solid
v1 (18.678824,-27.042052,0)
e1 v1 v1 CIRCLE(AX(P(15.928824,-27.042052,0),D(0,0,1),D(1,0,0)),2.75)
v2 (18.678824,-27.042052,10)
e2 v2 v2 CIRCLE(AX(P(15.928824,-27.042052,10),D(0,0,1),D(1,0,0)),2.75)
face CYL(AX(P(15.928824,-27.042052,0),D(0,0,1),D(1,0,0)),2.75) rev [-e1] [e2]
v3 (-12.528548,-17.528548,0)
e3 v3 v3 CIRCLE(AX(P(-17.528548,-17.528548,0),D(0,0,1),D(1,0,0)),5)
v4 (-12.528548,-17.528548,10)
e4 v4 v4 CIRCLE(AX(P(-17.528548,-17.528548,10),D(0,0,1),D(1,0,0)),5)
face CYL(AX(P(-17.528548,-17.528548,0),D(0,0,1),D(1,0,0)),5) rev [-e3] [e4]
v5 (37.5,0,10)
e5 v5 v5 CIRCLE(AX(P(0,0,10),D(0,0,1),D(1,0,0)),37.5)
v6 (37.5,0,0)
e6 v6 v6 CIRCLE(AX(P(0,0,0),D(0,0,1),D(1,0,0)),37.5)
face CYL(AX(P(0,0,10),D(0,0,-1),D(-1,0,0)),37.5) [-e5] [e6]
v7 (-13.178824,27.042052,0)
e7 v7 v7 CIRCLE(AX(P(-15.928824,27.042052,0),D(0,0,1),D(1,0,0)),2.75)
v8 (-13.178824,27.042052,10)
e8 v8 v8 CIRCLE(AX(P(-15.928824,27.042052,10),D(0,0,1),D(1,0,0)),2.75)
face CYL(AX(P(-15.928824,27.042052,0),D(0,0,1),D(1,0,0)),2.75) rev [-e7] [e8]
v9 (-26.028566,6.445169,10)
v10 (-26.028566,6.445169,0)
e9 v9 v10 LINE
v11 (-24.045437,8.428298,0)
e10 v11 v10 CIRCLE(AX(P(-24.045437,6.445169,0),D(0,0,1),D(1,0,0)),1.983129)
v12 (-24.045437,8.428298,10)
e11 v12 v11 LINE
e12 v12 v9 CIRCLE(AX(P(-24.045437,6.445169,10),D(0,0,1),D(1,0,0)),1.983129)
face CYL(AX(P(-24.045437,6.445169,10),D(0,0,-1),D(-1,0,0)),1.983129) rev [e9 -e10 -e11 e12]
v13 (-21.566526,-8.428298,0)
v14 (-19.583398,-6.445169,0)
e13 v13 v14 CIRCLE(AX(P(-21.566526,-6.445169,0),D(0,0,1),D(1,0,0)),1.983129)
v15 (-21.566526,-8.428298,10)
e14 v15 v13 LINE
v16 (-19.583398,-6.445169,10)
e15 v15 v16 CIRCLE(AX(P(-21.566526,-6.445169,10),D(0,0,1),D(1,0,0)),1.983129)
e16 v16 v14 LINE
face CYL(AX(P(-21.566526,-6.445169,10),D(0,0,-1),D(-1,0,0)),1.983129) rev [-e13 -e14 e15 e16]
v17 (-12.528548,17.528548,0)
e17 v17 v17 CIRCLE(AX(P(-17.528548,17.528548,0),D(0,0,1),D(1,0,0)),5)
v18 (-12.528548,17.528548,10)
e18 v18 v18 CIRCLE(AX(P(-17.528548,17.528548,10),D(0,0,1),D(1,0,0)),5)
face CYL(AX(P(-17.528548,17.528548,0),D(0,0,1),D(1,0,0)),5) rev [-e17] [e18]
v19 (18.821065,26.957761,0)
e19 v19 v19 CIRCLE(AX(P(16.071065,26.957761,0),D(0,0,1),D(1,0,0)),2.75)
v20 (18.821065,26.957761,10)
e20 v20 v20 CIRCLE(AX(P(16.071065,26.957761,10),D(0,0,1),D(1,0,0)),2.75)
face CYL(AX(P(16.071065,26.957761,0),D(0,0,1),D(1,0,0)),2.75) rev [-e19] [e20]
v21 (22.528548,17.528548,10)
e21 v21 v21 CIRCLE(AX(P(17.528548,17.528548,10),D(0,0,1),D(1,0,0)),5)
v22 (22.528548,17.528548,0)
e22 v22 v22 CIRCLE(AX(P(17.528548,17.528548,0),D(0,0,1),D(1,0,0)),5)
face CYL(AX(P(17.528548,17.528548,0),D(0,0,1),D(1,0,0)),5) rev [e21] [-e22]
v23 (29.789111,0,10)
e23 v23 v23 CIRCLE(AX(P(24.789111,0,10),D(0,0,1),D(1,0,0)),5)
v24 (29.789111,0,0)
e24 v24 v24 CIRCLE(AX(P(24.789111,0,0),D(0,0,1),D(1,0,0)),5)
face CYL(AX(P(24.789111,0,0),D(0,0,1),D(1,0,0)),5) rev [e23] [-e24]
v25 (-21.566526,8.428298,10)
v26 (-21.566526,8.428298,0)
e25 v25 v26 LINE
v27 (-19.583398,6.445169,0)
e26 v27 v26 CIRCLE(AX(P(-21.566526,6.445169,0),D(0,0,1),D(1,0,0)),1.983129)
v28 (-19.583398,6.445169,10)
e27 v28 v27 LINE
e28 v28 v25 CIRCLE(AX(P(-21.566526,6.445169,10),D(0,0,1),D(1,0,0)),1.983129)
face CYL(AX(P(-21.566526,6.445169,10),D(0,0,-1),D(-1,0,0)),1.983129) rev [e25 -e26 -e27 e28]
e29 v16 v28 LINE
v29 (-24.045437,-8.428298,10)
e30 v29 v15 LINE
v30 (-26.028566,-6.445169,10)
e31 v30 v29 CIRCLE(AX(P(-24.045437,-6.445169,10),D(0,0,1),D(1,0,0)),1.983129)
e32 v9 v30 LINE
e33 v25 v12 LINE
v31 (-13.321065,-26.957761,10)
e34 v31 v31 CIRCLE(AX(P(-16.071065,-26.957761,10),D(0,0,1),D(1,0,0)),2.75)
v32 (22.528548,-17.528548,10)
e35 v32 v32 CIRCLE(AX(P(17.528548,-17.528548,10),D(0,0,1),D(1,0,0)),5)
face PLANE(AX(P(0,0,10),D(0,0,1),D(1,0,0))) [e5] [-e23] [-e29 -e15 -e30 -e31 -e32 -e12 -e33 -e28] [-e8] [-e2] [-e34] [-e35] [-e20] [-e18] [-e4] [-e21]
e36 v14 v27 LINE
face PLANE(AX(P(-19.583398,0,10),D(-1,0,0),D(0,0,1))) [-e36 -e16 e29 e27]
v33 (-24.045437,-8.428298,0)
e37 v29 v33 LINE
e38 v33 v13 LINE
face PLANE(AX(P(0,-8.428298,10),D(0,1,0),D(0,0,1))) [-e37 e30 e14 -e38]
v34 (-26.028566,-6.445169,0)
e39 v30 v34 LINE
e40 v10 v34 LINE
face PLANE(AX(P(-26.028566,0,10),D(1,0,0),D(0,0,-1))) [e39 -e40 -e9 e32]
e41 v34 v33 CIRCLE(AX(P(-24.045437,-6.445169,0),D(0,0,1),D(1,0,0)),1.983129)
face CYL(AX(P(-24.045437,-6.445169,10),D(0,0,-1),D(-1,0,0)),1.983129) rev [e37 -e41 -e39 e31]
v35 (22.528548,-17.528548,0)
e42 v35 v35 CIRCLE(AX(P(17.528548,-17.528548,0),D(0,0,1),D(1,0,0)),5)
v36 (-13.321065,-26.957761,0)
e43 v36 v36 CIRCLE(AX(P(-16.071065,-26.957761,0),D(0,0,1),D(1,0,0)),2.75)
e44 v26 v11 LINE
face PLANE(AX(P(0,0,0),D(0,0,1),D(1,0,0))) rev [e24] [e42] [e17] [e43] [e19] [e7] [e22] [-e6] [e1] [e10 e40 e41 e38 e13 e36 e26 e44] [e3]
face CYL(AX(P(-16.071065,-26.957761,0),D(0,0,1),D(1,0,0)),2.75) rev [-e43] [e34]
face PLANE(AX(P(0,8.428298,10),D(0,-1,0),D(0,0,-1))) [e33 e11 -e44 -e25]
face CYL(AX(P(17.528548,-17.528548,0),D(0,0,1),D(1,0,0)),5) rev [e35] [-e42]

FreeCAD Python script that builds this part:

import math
import FreeCAD as App
import Part
import Sketcher
from FreeCAD import Vector
Q = App.Units.Quantity

doc = App.newDocument("Part")
body = doc.addObject("PartDesign::Body", "Body")

# Sketch on XY plane
sketch1 = doc.addObject("Sketcher::SketchObject", "Sketch")
body.addObject(sketch1)
sketch1.AttachmentSupport = (doc.XY_Plane, [""])
sketch1.MapMode = "FlatFace"
sketch1.addGeometry(Part.Circle(Vector(0, 0, 0), Vector(0, 0, 1), 37.5), False)
sketch1.addGeometry(Part.Circle(Vector(-17.5, -17.5, 0), Vector(0, 0, 1), 3.2), False)
sketch1.addGeometry(Part.ArcOfCircle(Part.Circle(Vector(-24, 6.4, 0), Vector(0, 0, 1), 2), math.radians(90), math.radians(180)), False)
sketch1.addGeometry(Part.LineSegment(Vector(-24, 8.4, 0), Vector(-21.6, 8.4, 0)), False)
sketch1.addGeometry(Part.ArcOfCircle(Part.Circle(Vector(-21.6, 6.4, 0), Vector(0, 0, 1), 2), math.radians(37), math.radians(90)), False)
sketch1.addGeometry(Part.ArcOfCircle(Part.Circle(Vector(-21.6, 6.4, 0), Vector(0, 0, 1), 2), math.radians(0), math.radians(37)), False)
sketch1.addGeometry(Part.LineSegment(Vector(-19.6, 6.4, 0), Vector(-19.6, -6.4, 0)), False)
sketch1.addGeometry(Part.ArcOfCircle(Part.Circle(Vector(-21.6, -6.4, 0), Vector(0, 0, 1), 2), math.radians(-90), math.radians(0)), False)
sketch1.addGeometry(Part.LineSegment(Vector(-21.6, -8.4, 0), Vector(-24, -8.4, 0)), False)
sketch1.addGeometry(Part.ArcOfCircle(Part.Circle(Vector(-24, -6.4, 0), Vector(0, 0, 1), 2), math.radians(180), math.radians(270)), False)
sketch1.addGeometry(Part.LineSegment(Vector(-26, -6.4, 0), Vector(-26, 6.4, 0)), False)
sketch1.addGeometry(Part.Circle(Vector(17.5, -17.5, 0), Vector(0, 0, 1), 3.2), False)
sketch1.addGeometry(Part.Circle(Vector(-17.5, 17.5, 0), Vector(0, 0, 1), 3.2), False)
sketch1.addGeometry(Part.ArcOfCircle(Part.Circle(Vector(24.8, 0, 0), Vector(0, 0, 1), 3), math.radians(180), math.radians(360)), False)
sketch1.addGeometry(Part.ArcOfCircle(Part.Circle(Vector(24.8, 0, 0), Vector(0, 0, 1), 3), math.radians(0), math.radians(180)), False)
sketch1.addGeometry(Part.Circle(Vector(17.5, 17.5, 0), Vector(0, 0, 1), 3.2), False)
sketch1.addConstraint(Sketcher.Constraint("Tangent", 2, 1, 3, 1))
sketch1.addConstraint(Sketcher.Constraint("Tangent", 3, 2, 4, 2))
sketch1.addConstraint(Sketcher.Constraint("Tangent", 4, 1, 5, 2))
sketch1.addConstraint(Sketcher.Constraint("Tangent", 5, 1, 6, 1))
sketch1.addConstraint(Sketcher.Constraint("Tangent", 6, 2, 7, 2))
sketch1.addConstraint(Sketcher.Constraint("Tangent", 7, 1, 8, 1))
sketch1.addConstraint(Sketcher.Constraint("Tangent", 8, 2, 9, 2))
sketch1.addConstraint(Sketcher.Constraint("Tangent", 9, 1, 10, 1))
sketch1.addConstraint(Sketcher.Constraint("Tangent", 10, 2, 2, 2))
sketch1.addConstraint(Sketcher.Constraint("Tangent", 13, 1, 14, 2))
sketch1.addConstraint(Sketcher.Constraint("Coincident", 14, 1, 13, 2))
sketch1.addConstraint(Sketcher.Constraint("Horizontal", 3))
sketch1.addConstraint(Sketcher.Constraint("Vertical", 6))
sketch1.addConstraint(Sketcher.Constraint("Horizontal", 8))
sketch1.addConstraint(Sketcher.Constraint("Vertical", 10))
sketch1.addConstraint(Sketcher.Constraint("Coincident", 0, 3, -1, 1))
sketch1.addConstraint(Sketcher.Constraint("Equal", 2, 4))
sketch1.addConstraint(Sketcher.Constraint("Equal", 4, 5))
sketch1.addConstraint(Sketcher.Constraint("Equal", 5, 7))
sketch1.addConstraint(Sketcher.Constraint("Equal", 7, 9))
sketch1.addConstraint(Sketcher.Constraint("Equal", 1, 11))
sketch1.addConstraint(Sketcher.Constraint("Equal", 11, 12))
sketch1.addConstraint(Sketcher.Constraint("Equal", 12, 15))
sketch1.addConstraint(Sketcher.Constraint("Symmetric", 11, 3, 12, 3, -1, 1))
sketch1.addConstraint(Sketcher.Constraint("Symmetric", 1, 3, 15, 3, -1, 1))
sketch1.addConstraint(Sketcher.Constraint("Symmetric", 1, 3, 11, 3, -2))
sketch1.addConstraint(Sketcher.Constraint("PointOnObject", 13, 3, -1))
sketch1.addConstraint(Sketcher.Constraint("PointOnObject", 13, 1, -1))
sketch1.addConstraint(Sketcher.Constraint("PointOnObject", 14, 1, -1))
sketch1.addConstraint(Sketcher.Constraint("Diameter", 0, Q("75 mm")))
sketch1.addConstraint(Sketcher.Constraint("Diameter", 1, Q("6.445169 mm")))
sketch1.addConstraint(Sketcher.Constraint("Radius", 2, Q("1.983129 mm")))
sketch1.addConstraint(Sketcher.Constraint("Radius", 13, Q("2.974693 mm")))
sketch1.addConstraint(Sketcher.Constraint("DistanceX", 3, 1, 3, 2, Q("2.478911 mm")))
sketch1.addConstraint(Sketcher.Constraint("DistanceY", 6, 2, 6, 1, Q("12.890338 mm")))
sketch1.addConstraint(Sketcher.Constraint("DistanceX", 1, 3, -1, 1, Q("17.528548 mm")))
sketch1.addConstraint(Sketcher.Constraint("DistanceY", 1, 3, -1, 1, Q("17.528548 mm")))
sketch1.addConstraint(Sketcher.Constraint("DistanceY", -1, 1, 2, 3, Q("6.445169 mm")))
sketch1.addConstraint(Sketcher.Constraint("DistanceX", -1, 1, 13, 3, Q("24.789111 mm")))
sketch1.addConstraint(Sketcher.Constraint("DistanceY", -1, 1, 4, 1, Q("7.642159 mm")))
sketch1.addConstraint(Sketcher.Constraint("DistanceX", 2, 3, 1, 3, Q("6.516889 mm")))
pad1 = doc.addObject("PartDesign::Pad", "Pad")
body.addObject(pad1)
pad1.Profile = sketch1
pad1.Length = 10

# Sketch on XY plane
sketch2 = doc.addObject("Sketcher::SketchObject", "Sketch001")
body.addObject(sketch2)
sketch2.AttachmentSupport = (doc.XY_Plane, [""])
sketch2.MapMode = "FlatFace"
sketch2.AttachmentOffset = App.Placement(Vector(0, 0, 10), App.Rotation())
sketch2.addGeometry(Part.Circle(Vector(-17.5, 17.5, 0), Vector(0, 0, 1), 5), False)
sketch2.addGeometry(Part.Circle(Vector(-17.5, 17.5, 0), Vector(0, 0, 1), 3.2), False)
sketch2.addGeometry(Part.Circle(Vector(17.5, 17.5, 0), Vector(0, 0, 1), 5), False)
sketch2.addGeometry(Part.Circle(Vector(17.5, 17.5, 0), Vector(0, 0, 1), 3.2), False)
sketch2.addGeometry(Part.Circle(Vector(-17.5, -17.5, 0), Vector(0, 0, 1), 5), False)
sketch2.addGeometry(Part.Circle(Vector(-17.5, -17.5, 0), Vector(0, 0, 1), 3.2), False)
sketch2.addGeometry(Part.Circle(Vector(17.5, -17.5, 0), Vector(0, 0, 1), 5), False)
sketch2.addGeometry(Part.Circle(Vector(17.5, -17.5, 0), Vector(0, 0, 1), 3.2), False)
sketch2.addGeometry(Part.Circle(Vector(24.8, 0, 0), Vector(0, 0, 1), 5), False)
sketch2.addGeometry(Part.ArcOfCircle(Part.Circle(Vector(24.8, 0, 0), Vector(0, 0, 1), 3), math.radians(180), math.radians(360)), False)
sketch2.addGeometry(Part.ArcOfCircle(Part.Circle(Vector(24.8, 0, 0), Vector(0, 0, 1), 3), math.radians(0), math.radians(180)), False)
sketch2.addConstraint(Sketcher.Constraint("Tangent", 9, 1, 10, 2))
sketch2.addConstraint(Sketcher.Constraint("Coincident", 10, 1, 9, 2))
sketch2.addConstraint(Sketcher.Constraint("Coincident", 1, 3, 0, 3))
sketch2.addConstraint(Sketcher.Constraint("Coincident", 3, 3, 2, 3))
sketch2.addConstraint(Sketcher.Constraint("Coincident", 5, 3, 4, 3))
sketch2.addConstraint(Sketcher.Constraint("Coincident", 7, 3, 6, 3))
sketch2.addConstraint(Sketcher.Constraint("Coincident", 9, 3, 8, 3))
sketch2.addConstraint(Sketcher.Constraint("Equal", 0, 2))
sketch2.addConstraint(Sketcher.Constraint("Equal", 1, 3))
sketch2.addConstraint(Sketcher.Constraint("Equal", 2, 4))
sketch2.addConstraint(Sketcher.Constraint("Equal", 3, 5))
sketch2.addConstraint(Sketcher.Constraint("Equal", 4, 6))
sketch2.addConstraint(Sketcher.Constraint("Equal", 5, 7))
sketch2.addConstraint(Sketcher.Constraint("Equal", 6, 8))
sketch2.addConstraint(Sketcher.Constraint("Symmetric", 2, 3, 4, 3, -1, 1))
sketch2.addConstraint(Sketcher.Constraint("Symmetric", 0, 3, 6, 3, -1, 1))
sketch2.addConstraint(Sketcher.Constraint("Symmetric", 0, 3, 2, 3, -2))
sketch2.addConstraint(Sketcher.Constraint("PointOnObject", 8, 3, -1))
sketch2.addConstraint(Sketcher.Constraint("PointOnObject", 9, 1, -1))
sketch2.addConstraint(Sketcher.Constraint("PointOnObject", 10, 1, -1))
sketch2.addConstraint(Sketcher.Constraint("Diameter", 0, Q("10 mm")))
sketch2.addConstraint(Sketcher.Constraint("Diameter", 1, Q("6.445169 mm")))
sketch2.addConstraint(Sketcher.Constraint("Radius", 9, Q("2.974693 mm")))
sketch2.addConstraint(Sketcher.Constraint("DistanceX", 0, 3, -1, 1, Q("17.528548 mm")))
sketch2.addConstraint(Sketcher.Constraint("DistanceY", -1, 1, 0, 3, Q("17.528548 mm")))
sketch2.addConstraint(Sketcher.Constraint("DistanceX", -1, 1, 8, 3, Q("24.789111 mm")))
pocket1 = doc.addObject("PartDesign::Pocket", "Pocket")
body.addObject(pocket1)
pocket1.Profile = sketch2
pocket1.Length = 10

# Sketch on XY plane
sketch3 = doc.addObject("Sketcher::SketchObject", "Sketch002")
body.addObject(sketch3)
sketch3.AttachmentSupport = (doc.XY_Plane, [""])
sketch3.MapMode = "FlatFace"
sketch3.AttachmentOffset = App.Placement(Vector(0, 0, 10), App.Rotation())
sketch3.addGeometry(Part.Circle(Vector(-16.1, -27, 0), Vector(0, 0, 1), 2.8), False)
sketch3.addGeometry(Part.Circle(Vector(15.9, -27, 0), Vector(0, 0, 1), 2.8), False)
sketch3.addGeometry(Part.Circle(Vector(16.1, 27, 0), Vector(0, 0, 1), 2.8), False)
sketch3.addGeometry(Part.Circle(Vector(-15.9, 27, 0), Vector(0, 0, 1), 2.8), False)
sketch3.addConstraint(Sketcher.Constraint("Equal", 0, 1))
sketch3.addConstraint(Sketcher.Constraint("Equal", 1, 2))
sketch3.addConstraint(Sketcher.Constraint("Equal", 2, 3))
sketch3.addConstraint(Sketcher.Constraint("Symmetric", 0, 3, 2, 3, -1, 1))
sketch3.addConstraint(Sketcher.Constraint("Symmetric", 1, 3, 3, 3, -1, 1))
sketch3.addConstraint(Sketcher.Constraint("Diameter", 0, Q("5.5 mm")))
sketch3.addConstraint(Sketcher.Constraint("DistanceY", 0, 3, -1, 1, Q("26.957761 mm")))
sketch3.addConstraint(Sketcher.Constraint("DistanceY", 1, 3, -1, 1, Q("27.042052 mm")))
sketch3.addConstraint(Sketcher.Constraint("DistanceX", 0, 3, 1, 3, Q("31.999889 mm")))
sketch3.addConstraint(Sketcher.Constraint("DistanceX", 1, 3, 2, 3, Q("0.142241 mm")))
pocket2 = doc.addObject("PartDesign::Pocket", "Pocket001")
body.addObject(pocket2)
pocket2.Profile = sketch3
pocket2.Length = 10

doc.recompute()
